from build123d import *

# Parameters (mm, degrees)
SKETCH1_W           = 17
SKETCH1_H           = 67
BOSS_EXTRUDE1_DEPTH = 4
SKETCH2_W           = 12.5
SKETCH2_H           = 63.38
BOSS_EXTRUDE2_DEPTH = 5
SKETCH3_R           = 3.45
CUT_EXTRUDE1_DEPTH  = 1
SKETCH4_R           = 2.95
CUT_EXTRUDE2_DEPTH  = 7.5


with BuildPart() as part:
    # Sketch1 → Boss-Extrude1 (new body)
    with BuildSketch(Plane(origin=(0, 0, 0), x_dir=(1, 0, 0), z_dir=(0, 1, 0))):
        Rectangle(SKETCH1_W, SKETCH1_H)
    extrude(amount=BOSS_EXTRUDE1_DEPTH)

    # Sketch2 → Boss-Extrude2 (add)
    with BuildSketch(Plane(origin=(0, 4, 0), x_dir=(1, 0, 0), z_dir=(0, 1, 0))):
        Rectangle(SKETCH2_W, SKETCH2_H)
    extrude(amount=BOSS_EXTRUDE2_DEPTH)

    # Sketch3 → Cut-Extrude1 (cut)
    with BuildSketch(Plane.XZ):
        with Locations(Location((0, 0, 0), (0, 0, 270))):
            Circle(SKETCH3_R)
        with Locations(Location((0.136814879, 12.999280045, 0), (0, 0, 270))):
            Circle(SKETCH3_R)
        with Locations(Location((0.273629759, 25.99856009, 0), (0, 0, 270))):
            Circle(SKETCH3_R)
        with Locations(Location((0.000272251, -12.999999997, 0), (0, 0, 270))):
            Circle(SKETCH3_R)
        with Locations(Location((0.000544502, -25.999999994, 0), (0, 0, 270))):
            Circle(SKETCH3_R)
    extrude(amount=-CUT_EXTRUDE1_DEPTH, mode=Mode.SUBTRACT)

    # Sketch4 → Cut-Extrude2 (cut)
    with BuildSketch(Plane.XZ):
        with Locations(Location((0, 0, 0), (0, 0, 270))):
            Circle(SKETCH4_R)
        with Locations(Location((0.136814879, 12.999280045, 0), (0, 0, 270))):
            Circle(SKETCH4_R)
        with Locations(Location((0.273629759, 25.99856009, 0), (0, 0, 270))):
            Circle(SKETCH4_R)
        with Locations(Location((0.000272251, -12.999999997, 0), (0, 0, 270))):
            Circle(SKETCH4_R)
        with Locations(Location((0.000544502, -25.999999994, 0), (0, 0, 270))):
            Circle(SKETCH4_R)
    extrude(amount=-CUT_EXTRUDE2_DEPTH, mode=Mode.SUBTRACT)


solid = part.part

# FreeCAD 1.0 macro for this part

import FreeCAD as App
import Part
import Sketcher
from FreeCAD import Vector
Q = App.Units.Quantity

doc = App.newDocument("Part")
params = doc.addObject("Spreadsheet::Sheet", "Params")
for row, (alias, value) in enumerate([
    ("sketch1_width", "17 mm"),
    ("sketch1_height", "67 mm"),
    ("pad1_length", "4 mm"),
    ("sketch2_width", "12.5 mm"),
    ("sketch2_height", "63.38 mm"),
    ("pad2_length", "5 mm"),
    ("sketch3_diameter", "6.9 mm"),
    ("pocket1_length", "1 mm"),
    ("sketch4_diameter", "5.9 mm"),
    ("pocket2_length", "7.5 mm"),
], start=1):
    params.set(f"A{row}", alias)
    params.set(f"B{row}", "=" + value)
    params.setAlias(f"B{row}", alias)

body = doc.addObject("PartDesign::Body", "Body")

# Sketch on XZ plane
sketch1 = doc.addObject("Sketcher::SketchObject", "Sketch")
body.addObject(sketch1)
sketch1.AttachmentSupport = (doc.XZ_Plane, [""])
sketch1.MapMode = "FlatFace"
sketch1.addGeometry(Part.LineSegment(Vector(-8.5, -33.5, 0), Vector(-8.5, 33.5, 0)), False)
sketch1.addGeometry(Part.LineSegment(Vector(-8.5, 33.5, 0), Vector(8.5, 33.5, 0)), False)
sketch1.addGeometry(Part.LineSegment(Vector(8.5, 33.5, 0), Vector(8.5, -33.5, 0)), False)
sketch1.addGeometry(Part.LineSegment(Vector(8.5, -33.5, 0), Vector(-8.5, -33.5, 0)), False)
sketch1.addConstraint(Sketcher.Constraint("Coincident", 0, 2, 1, 1))
sketch1.addConstraint(Sketcher.Constraint("Coincident", 1, 2, 2, 1))
sketch1.addConstraint(Sketcher.Constraint("Coincident", 2, 2, 3, 1))
sketch1.addConstraint(Sketcher.Constraint("Coincident", 3, 2, 0, 1))
sketch1.addConstraint(Sketcher.Constraint("Vertical", 0))
sketch1.addConstraint(Sketcher.Constraint("Horizontal", 1))
sketch1.addConstraint(Sketcher.Constraint("Vertical", 2))
sketch1.addConstraint(Sketcher.Constraint("Horizontal", 3))
sketch1.addConstraint(Sketcher.Constraint("Symmetric", 0, 2, 2, 2, -1, 1))
sketch1.addConstraint(Sketcher.Constraint("DistanceX", 1, 1, 1, 2, Q("17 mm")))
sketch1.addConstraint(Sketcher.Constraint("DistanceY", 0, 1, 0, 2, Q("67 mm")))
sketch1.setExpression("Constraints[9]", "Params.sketch1_width")
sketch1.setExpression("Constraints[10]", "Params.sketch1_height")
pad1 = doc.addObject("PartDesign::Pad", "Pad")
body.addObject(pad1)
pad1.Profile = sketch1
pad1.setExpression("Length", "Params.pad1_length")
pad1.Reversed = True

# Sketch on XZ plane
sketch2 = doc.addObject("Sketcher::SketchObject", "Sketch001")
body.addObject(sketch2)
sketch2.AttachmentSupport = (doc.XZ_Plane, [""])
sketch2.MapMode = "FlatFace"
sketch2.AttachmentOffset = App.Placement(Vector(0, 0, -4), App.Rotation())
sketch2.addGeometry(Part.LineSegment(Vector(-6.25, -31.69, 0), Vector(-6.25, 31.69, 0)), False)
sketch2.addGeometry(Part.LineSegment(Vector(-6.25, 31.69, 0), Vector(6.25, 31.69, 0)), False)
sketch2.addGeometry(Part.LineSegment(Vector(6.25, 31.69, 0), Vector(6.25, -31.69, 0)), False)
sketch2.addGeometry(Part.LineSegment(Vector(6.25, -31.69, 0), Vector(-6.25, -31.69, 0)), False)
sketch2.addConstraint(Sketcher.Constraint("Coincident", 0, 2, 1, 1))
sketch2.addConstraint(Sketcher.Constraint("Coincident", 1, 2, 2, 1))
sketch2.addConstraint(Sketcher.Constraint("Coincident", 2, 2, 3, 1))
sketch2.addConstraint(Sketcher.Constraint("Coincident", 3, 2, 0, 1))
sketch2.addConstraint(Sketcher.Constraint("Vertical", 0))
sketch2.addConstraint(Sketcher.Constraint("Horizontal", 1))
sketch2.addConstraint(Sketcher.Constraint("Vertical", 2))
sketch2.addConstraint(Sketcher.Constraint("Horizontal", 3))
sketch2.addConstraint(Sketcher.Constraint("Symmetric", 0, 2, 2, 2, -1, 1))
sketch2.addConstraint(Sketcher.Constraint("DistanceX", 1, 1, 1, 2, Q("12.5 mm")))
sketch2.addConstraint(Sketcher.Constraint("DistanceY", 0, 1, 0, 2, Q("63.38 mm")))
sketch2.setExpression("Constraints[9]", "Params.sketch2_width")
sketch2.setExpression("Constraints[10]", "Params.sketch2_height")
pad2 = doc.addObject("PartDesign::Pad", "Pad001")
body.addObject(pad2)
pad2.Profile = sketch2
pad2.setExpression("Length", "Params.pad2_length")
pad2.Reversed = True

# Sketch on XZ plane
sketch3 = doc.addObject("Sketcher::SketchObject", "Sketch002")
body.addObject(sketch3)
sketch3.AttachmentSupport = (doc.XZ_Plane, [""])
sketch3.MapMode = "FlatFace"
sketch3.addGeometry(Part.Circle(Vector(0, 0, 0), Vector(0, 0, 1), 3.45), False)
sketch3.addGeometry(Part.Circle(Vector(0.136815, 12.99928, 0), Vector(0, 0, 1), 3.45), False)
sketch3.addGeometry(Part.Circle(Vector(0.27363, 25.99856, 0), Vector(0, 0, 1), 3.45), False)
sketch3.addGeometry(Part.Circle(Vector(0.000272, -13, 0), Vector(0, 0, 1), 3.45), False)
sketch3.addGeometry(Part.Circle(Vector(0.000545, -26, 0), Vector(0, 0, 1), 3.45), False)
sketch3.addConstraint(Sketcher.Constraint("Coincident", 0, 3, -1, 1))
sketch3.addConstraint(Sketcher.Constraint("Equal", 0, 1))
sketch3.addConstraint(Sketcher.Constraint("Equal", 1, 2))
sketch3.addConstraint(Sketcher.Constraint("Equal", 2, 3))
sketch3.addConstraint(Sketcher.Constraint("Equal", 3, 4))
sketch3.addConstraint(Sketcher.Constraint("Diameter", 0, Q("6.9 mm")))
sketch3.addConstraint(Sketcher.Constraint("DistanceY", 3, 3, -1, 1, Q("13 mm")))
sketch3.addConstraint(Sketcher.Constraint("DistanceY", 4, 3, -1, 1, Q("26 mm")))
sketch3.addConstraint(Sketcher.Constraint("DistanceY", -1, 1, 1, 3, Q("12.99928 mm")))
sketch3.addConstraint(Sketcher.Constraint("DistanceX", -1, 1, 2, 3, Q("0.27363 mm")))
sketch3.addConstraint(Sketcher.Constraint("DistanceY", -1, 1, 2, 3, Q("25.99856 mm")))
sketch3.addConstraint(Sketcher.Constraint("DistanceX", 4, 3, 1, 3, Q("0.13627 mm")))
sketch3.addConstraint(Sketcher.Constraint("DistanceX", -1, 1, 1, 3, Q("0.136815 mm")))
sketch3.addConstraint(Sketcher.Constraint("DistanceX", -1, 1, 3, 3, Q("0.000272 mm")))
sketch3.setExpression("Constraints[5]", "Params.sketch3_diameter")
pocket1 = doc.addObject("PartDesign::Pocket", "Pocket")
body.addObject(pocket1)
pocket1.Profile = sketch3
pocket1.setExpression("Length", "Params.pocket1_length")

# Sketch on XZ plane
sketch4 = doc.addObject("Sketcher::SketchObject", "Sketch003")
body.addObject(sketch4)
sketch4.AttachmentSupport = (doc.XZ_Plane, [""])
sketch4.MapMode = "FlatFace"
sketch4.addGeometry(Part.Circle(Vector(0, 0, 0), Vector(0, 0, 1), 2.95), False)
sketch4.addGeometry(Part.Circle(Vector(0.136815, 12.99928, 0), Vector(0, 0, 1), 2.95), False)
sketch4.addGeometry(Part.Circle(Vector(0.27363, 25.99856, 0), Vector(0, 0, 1), 2.95), False)
sketch4.addGeometry(Part.Circle(Vector(0.000272, -13, 0), Vector(0, 0, 1), 2.95), False)
sketch4.addGeometry(Part.Circle(Vector(0.000545, -26, 0), Vector(0, 0, 1), 2.95), False)
sketch4.addConstraint(Sketcher.Constraint("Coincident", 0, 3, -1, 1))
sketch4.addConstraint(Sketcher.Constraint("Equal", 0, 1))
sketch4.addConstraint(Sketcher.Constraint("Equal", 1, 2))
sketch4.addConstraint(Sketcher.Constraint("Equal", 2, 3))
sketch4.addConstraint(Sketcher.Constraint("Equal", 3, 4))
sketch4.addConstraint(Sketcher.Constraint("Diameter", 0, Q("5.9 mm")))
sketch4.addConstraint(Sketcher.Constraint("DistanceY", 3, 3, -1, 1, Q("13 mm")))
sketch4.addConstraint(Sketcher.Constraint("DistanceY", 4, 3, -1, 1, Q("26 mm")))
sketch4.addConstraint(Sketcher.Constraint("DistanceY", -1, 1, 1, 3, Q("12.99928 mm")))
sketch4.addConstraint(Sketcher.Constraint("DistanceX", -1, 1, 2, 3, Q("0.27363 mm")))
sketch4.addConstraint(Sketcher.Constraint("DistanceY", -1, 1, 2, 3, Q("25.99856 mm")))
sketch4.addConstraint(Sketcher.Constraint("DistanceX", 4, 3, 1, 3, Q("0.13627 mm")))
sketch4.addConstraint(Sketcher.Constraint("DistanceX", -1, 1, 1, 3, Q("0.136815 mm")))
sketch4.addConstraint(Sketcher.Constraint("DistanceX", -1, 1, 3, 3, Q("0.000272 mm")))
sketch4.setExpression("Constraints[5]", "Params.sketch4_diameter")
pocket2 = doc.addObject("PartDesign::Pocket", "Pocket001")
body.addObject(pocket2)
pocket2.Profile = sketch4
pocket2.setExpression("Length", "Params.pocket2_length")

doc.recompute()
